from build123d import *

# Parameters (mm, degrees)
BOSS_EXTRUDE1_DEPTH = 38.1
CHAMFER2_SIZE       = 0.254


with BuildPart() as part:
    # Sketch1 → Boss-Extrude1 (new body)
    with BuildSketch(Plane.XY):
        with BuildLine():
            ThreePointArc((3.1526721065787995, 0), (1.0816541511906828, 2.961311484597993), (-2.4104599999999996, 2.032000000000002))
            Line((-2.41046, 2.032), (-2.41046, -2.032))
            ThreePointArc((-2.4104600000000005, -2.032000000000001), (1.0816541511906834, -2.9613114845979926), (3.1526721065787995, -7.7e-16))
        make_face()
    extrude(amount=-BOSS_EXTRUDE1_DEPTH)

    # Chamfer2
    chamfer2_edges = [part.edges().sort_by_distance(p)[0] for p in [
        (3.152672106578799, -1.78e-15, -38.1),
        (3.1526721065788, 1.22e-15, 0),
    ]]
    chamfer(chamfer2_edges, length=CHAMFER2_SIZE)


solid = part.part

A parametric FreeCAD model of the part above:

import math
import FreeCAD as App
import Part
import Sketcher
Q = App.Units.Quantity


def edges_at(feature, points):
    """Names of the edges that pass closest to the given points."""
    edges = feature.Shape.Edges
    near = lambda p: min(range(len(edges)), key=lambda i: edges[i].distToShape(Part.Vertex(*p))[0])
    return sorted({f"Edge{near(p) + 1}" for p in points})

doc = App.newDocument("Part")
body = doc.addObject("PartDesign::Body", "Body")

# Sketch on XY plane
sketch1 = doc.addObject("Sketcher::SketchObject", "Sketch")
body.addObject(sketch1)
sketch1.AttachmentSupport = (doc.XY_Plane, [""])
sketch1.MapMode = "FlatFace"
sketch1.addGeometry([
    Part.LineSegment(App.Vector(-2.4, 2, 0), App.Vector(-2.4, -2, 0)),
    Part.ArcOfCircle(Part.Circle(App.Vector(0, 0, 0), App.Vector(0, 0, 1), 3.2), math.radians(-140), math.radians(140)),
], False)
sketch1.addConstraint([
    Sketcher.Constraint("Coincident", 0, 1, 1, 2),
    Sketcher.Constraint("Coincident", 1, 1, 0, 2),
    Sketcher.Constraint("Vertical", 0),
    Sketcher.Constraint("Coincident", 1, 3, -1, 1),
    Sketcher.Constraint("DistanceY", 0, 2, 0, 1, Q("0.16 in")),
    Sketcher.Constraint("DistanceX", 0, 1, -1, 1, Q("0.0949 in")),
])
pad1 = doc.addObject("PartDesign::Pad", "Pad")
body.addObject(pad1)
pad1.Profile = sketch1
pad1.Length = Q("1.5 in")
pad1.Reversed = True
doc.recompute()

chamfer = doc.addObject("PartDesign::Chamfer", "Chamfer")
body.addObject(chamfer)
chamfer.Base = (pad1, edges_at(pad1, [(3.153, 0, -38.1), (3.153, 0, 0)]))
chamfer.Size = Q("0.01 in")

doc.recompute()
